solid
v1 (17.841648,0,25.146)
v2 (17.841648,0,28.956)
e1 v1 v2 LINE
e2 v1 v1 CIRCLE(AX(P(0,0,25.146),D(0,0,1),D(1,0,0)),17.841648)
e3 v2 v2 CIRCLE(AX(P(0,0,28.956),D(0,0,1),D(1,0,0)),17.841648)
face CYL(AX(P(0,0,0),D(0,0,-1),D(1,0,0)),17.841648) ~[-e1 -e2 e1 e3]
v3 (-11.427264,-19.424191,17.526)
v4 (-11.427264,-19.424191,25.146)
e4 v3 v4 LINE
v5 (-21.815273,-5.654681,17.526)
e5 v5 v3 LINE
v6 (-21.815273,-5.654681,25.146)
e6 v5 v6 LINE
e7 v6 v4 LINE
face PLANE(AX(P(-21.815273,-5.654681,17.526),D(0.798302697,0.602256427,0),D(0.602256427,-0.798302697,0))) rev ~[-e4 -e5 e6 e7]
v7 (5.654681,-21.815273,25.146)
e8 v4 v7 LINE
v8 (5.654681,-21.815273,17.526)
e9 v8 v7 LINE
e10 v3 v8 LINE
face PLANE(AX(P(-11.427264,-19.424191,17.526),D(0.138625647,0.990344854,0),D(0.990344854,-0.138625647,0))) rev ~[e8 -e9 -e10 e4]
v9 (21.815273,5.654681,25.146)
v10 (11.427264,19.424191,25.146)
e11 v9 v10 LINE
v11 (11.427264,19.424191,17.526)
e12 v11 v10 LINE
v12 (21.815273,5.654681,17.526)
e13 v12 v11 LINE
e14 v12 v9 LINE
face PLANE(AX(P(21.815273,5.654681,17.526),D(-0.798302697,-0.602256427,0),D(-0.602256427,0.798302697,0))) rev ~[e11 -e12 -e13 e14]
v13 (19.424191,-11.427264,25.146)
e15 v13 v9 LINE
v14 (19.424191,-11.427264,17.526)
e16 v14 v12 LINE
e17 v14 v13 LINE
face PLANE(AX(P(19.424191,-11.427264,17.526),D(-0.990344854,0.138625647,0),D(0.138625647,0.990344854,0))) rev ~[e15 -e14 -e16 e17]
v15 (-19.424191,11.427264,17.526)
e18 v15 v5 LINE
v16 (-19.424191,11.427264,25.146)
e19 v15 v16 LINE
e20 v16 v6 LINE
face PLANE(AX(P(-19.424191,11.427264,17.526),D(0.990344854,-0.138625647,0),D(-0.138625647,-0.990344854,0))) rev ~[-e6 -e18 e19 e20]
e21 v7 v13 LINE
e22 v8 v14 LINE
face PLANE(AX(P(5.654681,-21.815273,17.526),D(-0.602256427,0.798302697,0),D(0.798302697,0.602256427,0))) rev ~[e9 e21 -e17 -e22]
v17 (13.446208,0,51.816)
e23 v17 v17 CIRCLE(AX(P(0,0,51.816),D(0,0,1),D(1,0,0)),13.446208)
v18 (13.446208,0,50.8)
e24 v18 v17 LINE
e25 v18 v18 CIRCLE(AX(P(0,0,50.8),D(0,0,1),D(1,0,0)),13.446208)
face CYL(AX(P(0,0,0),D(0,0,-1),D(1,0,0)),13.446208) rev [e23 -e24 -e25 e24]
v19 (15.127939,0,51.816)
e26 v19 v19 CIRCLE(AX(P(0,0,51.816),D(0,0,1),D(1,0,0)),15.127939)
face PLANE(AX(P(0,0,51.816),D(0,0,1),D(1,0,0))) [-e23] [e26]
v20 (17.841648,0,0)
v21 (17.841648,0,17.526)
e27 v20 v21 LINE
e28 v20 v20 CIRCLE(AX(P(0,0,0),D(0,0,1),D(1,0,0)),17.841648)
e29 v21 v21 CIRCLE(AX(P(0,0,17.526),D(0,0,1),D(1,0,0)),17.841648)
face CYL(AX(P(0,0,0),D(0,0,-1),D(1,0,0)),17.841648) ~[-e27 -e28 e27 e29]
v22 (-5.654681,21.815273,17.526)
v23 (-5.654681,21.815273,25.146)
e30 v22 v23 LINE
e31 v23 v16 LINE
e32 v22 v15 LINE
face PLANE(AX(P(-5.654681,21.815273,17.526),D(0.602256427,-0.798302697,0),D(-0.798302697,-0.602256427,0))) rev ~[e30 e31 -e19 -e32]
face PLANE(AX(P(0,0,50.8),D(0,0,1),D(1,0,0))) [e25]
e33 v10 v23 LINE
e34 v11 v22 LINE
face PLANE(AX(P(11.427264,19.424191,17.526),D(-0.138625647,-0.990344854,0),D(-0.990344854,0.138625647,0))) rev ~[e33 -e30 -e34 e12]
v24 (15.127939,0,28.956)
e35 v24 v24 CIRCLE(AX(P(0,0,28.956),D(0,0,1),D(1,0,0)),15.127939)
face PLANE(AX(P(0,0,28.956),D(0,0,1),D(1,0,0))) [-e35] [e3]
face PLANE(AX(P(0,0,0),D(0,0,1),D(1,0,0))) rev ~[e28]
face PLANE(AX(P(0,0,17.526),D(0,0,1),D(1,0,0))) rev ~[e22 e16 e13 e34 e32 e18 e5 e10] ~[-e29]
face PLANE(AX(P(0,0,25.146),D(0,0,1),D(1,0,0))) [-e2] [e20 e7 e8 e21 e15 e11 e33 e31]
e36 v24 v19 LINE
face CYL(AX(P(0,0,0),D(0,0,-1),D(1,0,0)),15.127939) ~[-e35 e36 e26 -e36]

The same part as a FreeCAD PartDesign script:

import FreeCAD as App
import Part
import Sketcher
Q = App.Units.Quantity


def add_polygon(sketch, points):
    """Adds a closed chain of lines whose ends are joined by coincident constraints."""
    first, n = sketch.GeometryCount, len(points)
    for a, b in zip(points, points[1:] + points[:1]):
        sketch.addGeometry(Part.LineSegment(App.Vector(*a, 0), App.Vector(*b, 0)), False)
    for i in range(n):
        sketch.addConstraint(Sketcher.Constraint("Coincident", first + i, 2, first + (i + 1) % n, 1))

doc = App.newDocument("Part")
body = doc.addObject("PartDesign::Body", "Body")

# Sketch on XY plane
sketch1 = body.newObject("Sketcher::SketchObject", "Sketch")
sketch1.AttachmentSupport = (doc.getObject("XY_Plane"), [""])
sketch1.MapMode = "FlatFace"
sketch1.addGeometry(Part.Circle(App.Vector(0, 0, 0), App.Vector(0, 0, 1), 13.446208), False)
sketch1.addConstraint([
    Sketcher.Constraint("Coincident", 0, 3, -1, 1),
    Sketcher.Constraint("Diameter", 0, Q("26.892415 mm")),
])
pad1 = body.newObject("PartDesign::Pad", "Pad")
pad1.Profile = sketch1
pad1.Length = Q("2 in")

# Sketch on XY plane
sketch2 = body.newObject("Sketcher::SketchObject", "Sketch001")
sketch2.AttachmentSupport = (doc.getObject("XY_Plane"), [""])
sketch2.MapMode = "FlatFace"
sketch2.addGeometry([
    Part.Circle(App.Vector(0, 0, 0), App.Vector(0, 0, 1), 15.127939),
    Part.Circle(App.Vector(0, 0, 0), App.Vector(0, 0, 1), 13.446208),
], False)
sketch2.addConstraint([
    Sketcher.Constraint("Coincident", 0, 3, -1, 1),
    Sketcher.Constraint("Coincident", 1, 3, -1, 1),
    Sketcher.Constraint("Diameter", 0, Q("30.255878 mm")),
    Sketcher.Constraint("Diameter", 1, Q("26.892415 mm")),
])
pad2 = body.newObject("PartDesign::Pad", "Pad001")
pad2.Profile = sketch2
pad2.Length = Q("2.04 in")

# Sketch on XY plane
sketch3 = body.newObject("Sketcher::SketchObject", "Sketch002")
sketch3.AttachmentSupport = (doc.getObject("XY_Plane"), [""])
sketch3.MapMode = "FlatFace"
sketch3.addGeometry([
    Part.Circle(App.Vector(0, 0, 0), App.Vector(0, 0, 1), 17.841648),
    Part.Circle(App.Vector(0, 0, 0), App.Vector(0, 0, 1), 15.127939),
], False)
sketch3.addConstraint([
    Sketcher.Constraint("Coincident", 0, 3, -1, 1),
    Sketcher.Constraint("Coincident", 1, 3, -1, 1),
    Sketcher.Constraint("Diameter", 0, Q("35.683297 mm")),
    Sketcher.Constraint("Diameter", 1, Q("30.255878 mm")),
])
pad3 = body.newObject("PartDesign::Pad", "Pad002")
pad3.Profile = sketch3
pad3.Length = Q("1.14 in")

# Sketch on XY plane
sketch4 = body.newObject("Sketcher::SketchObject", "Sketch003")
sketch4.AttachmentSupport = (doc.getObject("XY_Plane"), [""])
sketch4.MapMode = "FlatFace"
sketch4.AttachmentOffset = App.Placement(App.Vector(0, 0, 0.69 * 25.4), App.Rotation())
add_polygon(sketch4, [(21.815273, 5.654681), (11.427264, 19.424191), (-5.654681, 21.815273), (-19.424191, 11.427264), (-21.815273, -5.654681), (-11.427264, -19.424191), (5.654681, -21.815273), (19.424191, -11.427264)])  # lines 0-7
sketch4.addGeometry(Part.Circle(App.Vector(0, 0, 0), App.Vector(0, 0, 1), 17.841648), False)  # 8
sketch4.addConstraint([
    Sketcher.Constraint("Coincident", 8, 3, -1, 1),
    Sketcher.Constraint("Symmetric", 0, 2, 4, 2, -1, 1),
    Sketcher.Constraint("Symmetric", 1, 2, 5, 2, -1, 1),
    Sketcher.Constraint("Symmetric", 2, 2, 6, 2, -1, 1),
    Sketcher.Constraint("Symmetric", 3, 2, 7, 2, -1, 1),
    Sketcher.Constraint("Perpendicular", 0, 2),
    Sketcher.Constraint("Perpendicular", 1, 3),
    Sketcher.Constraint("Equal", 0, 1),
    Sketcher.Constraint("Equal", 1, 2),
    Sketcher.Constraint("Equal", 2, 3),
    Sketcher.Constraint("Diameter", 8, Q("35.683297 mm")),
    Sketcher.Constraint("Distance", 0, Q("17.248482 mm")),
    Sketcher.Constraint("DistanceY", -1, 1, 0, 2, Q("19.424191 mm")),
    Sketcher.Constraint("DistanceX", 1, 2, -1, 1, Q("5.654681 mm")),
])
pad4 = body.newObject("PartDesign::Pad", "Pad003")
pad4.Profile = sketch4
pad4.Length = Q("0.3 in")

doc.recompute()
